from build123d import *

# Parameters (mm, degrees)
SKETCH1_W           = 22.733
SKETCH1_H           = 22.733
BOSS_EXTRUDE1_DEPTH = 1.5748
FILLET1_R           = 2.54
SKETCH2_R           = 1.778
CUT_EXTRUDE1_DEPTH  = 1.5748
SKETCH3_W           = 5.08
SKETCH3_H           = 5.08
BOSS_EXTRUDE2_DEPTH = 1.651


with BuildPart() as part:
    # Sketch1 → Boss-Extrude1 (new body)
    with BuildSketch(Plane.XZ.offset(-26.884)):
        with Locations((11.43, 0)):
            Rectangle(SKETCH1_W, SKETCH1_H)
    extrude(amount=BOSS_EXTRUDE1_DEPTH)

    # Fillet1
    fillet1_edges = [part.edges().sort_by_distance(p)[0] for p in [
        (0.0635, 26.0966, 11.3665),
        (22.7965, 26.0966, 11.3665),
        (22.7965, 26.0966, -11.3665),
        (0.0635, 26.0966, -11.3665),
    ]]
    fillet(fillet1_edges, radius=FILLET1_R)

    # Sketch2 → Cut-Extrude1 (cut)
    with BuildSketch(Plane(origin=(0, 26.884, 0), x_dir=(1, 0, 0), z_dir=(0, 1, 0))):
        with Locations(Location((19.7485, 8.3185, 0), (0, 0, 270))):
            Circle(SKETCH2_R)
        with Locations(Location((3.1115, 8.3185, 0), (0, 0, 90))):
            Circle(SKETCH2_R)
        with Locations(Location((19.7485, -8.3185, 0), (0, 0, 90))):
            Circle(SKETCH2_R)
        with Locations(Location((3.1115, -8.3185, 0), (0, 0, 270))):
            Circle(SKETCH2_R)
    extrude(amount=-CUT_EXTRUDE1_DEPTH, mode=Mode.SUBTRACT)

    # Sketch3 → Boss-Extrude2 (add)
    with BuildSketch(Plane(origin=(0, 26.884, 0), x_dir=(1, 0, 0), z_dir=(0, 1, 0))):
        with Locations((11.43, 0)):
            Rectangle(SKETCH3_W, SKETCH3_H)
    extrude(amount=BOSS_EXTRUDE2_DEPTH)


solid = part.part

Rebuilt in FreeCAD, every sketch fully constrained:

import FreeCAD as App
import Part
import Sketcher
from FreeCAD import Vector
Q = App.Units.Quantity


def edges_at(feature, points):
    """Names of the edges that pass closest to the given points."""
    edges = feature.Shape.Edges
    near = lambda p: min(range(len(edges)), key=lambda i: edges[i].distToShape(Part.Vertex(*p))[0])
    return sorted({f"Edge{near(p) + 1}" for p in points})

doc = App.newDocument("Part")
body = doc.addObject("PartDesign::Body", "Body")

# Sketch on XZ plane
sketch1 = body.newObject("Sketcher::SketchObject", "Sketch")
sketch1.AttachmentSupport = (doc.getObject("XZ_Plane"), [""])
sketch1.MapMode = "FlatFace"
sketch1.AttachmentOffset = App.Placement(Vector(0, 0, -26.884), App.Rotation())
sketch1.addGeometry([
    Part.LineSegment(Vector(0, 11, 0), Vector(0, -11, 0)),
    Part.LineSegment(Vector(0, -11, 0), Vector(23, -11, 0)),
    Part.LineSegment(Vector(23, -11, 0), Vector(23, 11, 0)),
    Part.LineSegment(Vector(23, 11, 0), Vector(0, 11, 0)),
], False)
sketch1.addConstraint([
    Sketcher.Constraint("Coincident", 0, 2, 1, 1),
    Sketcher.Constraint("Coincident", 1, 2, 2, 1),
    Sketcher.Constraint("Coincident", 2, 2, 3, 1),
    Sketcher.Constraint("Coincident", 3, 2, 0, 1),
    Sketcher.Constraint("Vertical", 0),
    Sketcher.Constraint("Horizontal", 1),
    Sketcher.Constraint("Vertical", 2),
    Sketcher.Constraint("Horizontal", 3),
    Sketcher.Constraint("Equal", 3, 0),
    Sketcher.Constraint("DistanceX", 1, 1, 1, 2, Q("0.895 in")),
    Sketcher.Constraint("DistanceX", -1, 1, 0, 2, Q("0.0025 in")),
    Sketcher.Constraint("DistanceY", 0, 2, -1, 1, Q("0.4475 in")),
])
pad1 = body.newObject("PartDesign::Pad", "Pad")
pad1.Profile = sketch1
pad1.Length = Q("0.062 in")
doc.recompute()

fillet = body.newObject("PartDesign::Fillet", "Fillet")
fillet.Base = (pad1, edges_at(pad1, [
    (0.064, 26.097, 11.367),
    (22.797, 26.097, 11.367),
    (22.797, 26.097, -11.367),
    (0.064, 26.097, -11.367),
]))
fillet.Radius = Q("0.1 in")

# Sketch on XZ plane
sketch2 = body.newObject("Sketcher::SketchObject", "Sketch001")
sketch2.AttachmentSupport = (doc.getObject("XZ_Plane"), [""])
sketch2.MapMode = "FlatFace"
sketch2.AttachmentOffset = App.Placement(Vector(0, 0, -26.884), App.Rotation())
sketch2.addGeometry([
    Part.Circle(Vector(19.7, -8.3, 0), Vector(0, 0, 1), 1.8),
    Part.Circle(Vector(3.1, -8.3, 0), Vector(0, 0, 1), 1.8),
    Part.Circle(Vector(19.7, 8.3, 0), Vector(0, 0, 1), 1.8),
    Part.Circle(Vector(3.1, 8.3, 0), Vector(0, 0, 1), 1.8),
], False)
sketch2.addConstraint([
    Sketcher.Constraint("Equal", 0, 1),
    Sketcher.Constraint("Equal", 1, 2),
    Sketcher.Constraint("Equal", 2, 3),
    Sketcher.Constraint("Symmetric", 0, 3, 2, 3, -1),
    Sketcher.Constraint("Symmetric", 1, 3, 3, 3, -1),
    Sketcher.Constraint("Horizontal", 0, 3, 1, 3),
    Sketcher.Constraint("Diameter", 0, Q("0.14 in")),
    Sketcher.Constraint("DistanceX", 1, 3, 0, 3, Q("0.655 in")),
    Sketcher.Constraint("DistanceY", 0, 3, 2, 3, Q("0.655 in")),
    Sketcher.Constraint("DistanceX", -1, 1, 0, 3, Q("0.7775 in")),
])
pocket1 = body.newObject("PartDesign::Pocket", "Pocket")
pocket1.Profile = sketch2
pocket1.Length = Q("0.062 in")
pocket1.Reversed = True

# Sketch on XZ plane
sketch3 = body.newObject("Sketcher::SketchObject", "Sketch002")
sketch3.AttachmentSupport = (doc.getObject("XZ_Plane"), [""])
sketch3.MapMode = "FlatFace"
sketch3.AttachmentOffset = App.Placement(Vector(0, 0, -26.884), App.Rotation())
sketch3.addGeometry([
    Part.LineSegment(Vector(9, -3, 0), Vector(9, 3, 0)),
    Part.LineSegment(Vector(9, 3, 0), Vector(14, 3, 0)),
    Part.LineSegment(Vector(14, 3, 0), Vector(14, -3, 0)),
    Part.LineSegment(Vector(14, -3, 0), Vector(9, -3, 0)),
], False)
sketch3.addConstraint([
    Sketcher.Constraint("Coincident", 0, 2, 1, 1),
    Sketcher.Constraint("Coincident", 1, 2, 2, 1),
    Sketcher.Constraint("Coincident", 2, 2, 3, 1),
    Sketcher.Constraint("Coincident", 3, 2, 0, 1),
    Sketcher.Constraint("Vertical", 0),
    Sketcher.Constraint("Horizontal", 1),
    Sketcher.Constraint("Vertical", 2),
    Sketcher.Constraint("Horizontal", 3),
    Sketcher.Constraint("Equal", 3, 0),
    Sketcher.Constraint("DistanceX", 1, 1, 1, 2, Q("0.2 in")),
    Sketcher.Constraint("DistanceY", -1, 1, 0, 2, Q("0.1 in")),
    Sketcher.Constraint("DistanceX", -1, 1, 0, 2, Q("0.35 in")),
])
pad2 = body.newObject("PartDesign::Pad", "Pad001")
pad2.Profile = sketch3
pad2.Length = Q("0.065 in")
pad2.Reversed = True

doc.recompute()
